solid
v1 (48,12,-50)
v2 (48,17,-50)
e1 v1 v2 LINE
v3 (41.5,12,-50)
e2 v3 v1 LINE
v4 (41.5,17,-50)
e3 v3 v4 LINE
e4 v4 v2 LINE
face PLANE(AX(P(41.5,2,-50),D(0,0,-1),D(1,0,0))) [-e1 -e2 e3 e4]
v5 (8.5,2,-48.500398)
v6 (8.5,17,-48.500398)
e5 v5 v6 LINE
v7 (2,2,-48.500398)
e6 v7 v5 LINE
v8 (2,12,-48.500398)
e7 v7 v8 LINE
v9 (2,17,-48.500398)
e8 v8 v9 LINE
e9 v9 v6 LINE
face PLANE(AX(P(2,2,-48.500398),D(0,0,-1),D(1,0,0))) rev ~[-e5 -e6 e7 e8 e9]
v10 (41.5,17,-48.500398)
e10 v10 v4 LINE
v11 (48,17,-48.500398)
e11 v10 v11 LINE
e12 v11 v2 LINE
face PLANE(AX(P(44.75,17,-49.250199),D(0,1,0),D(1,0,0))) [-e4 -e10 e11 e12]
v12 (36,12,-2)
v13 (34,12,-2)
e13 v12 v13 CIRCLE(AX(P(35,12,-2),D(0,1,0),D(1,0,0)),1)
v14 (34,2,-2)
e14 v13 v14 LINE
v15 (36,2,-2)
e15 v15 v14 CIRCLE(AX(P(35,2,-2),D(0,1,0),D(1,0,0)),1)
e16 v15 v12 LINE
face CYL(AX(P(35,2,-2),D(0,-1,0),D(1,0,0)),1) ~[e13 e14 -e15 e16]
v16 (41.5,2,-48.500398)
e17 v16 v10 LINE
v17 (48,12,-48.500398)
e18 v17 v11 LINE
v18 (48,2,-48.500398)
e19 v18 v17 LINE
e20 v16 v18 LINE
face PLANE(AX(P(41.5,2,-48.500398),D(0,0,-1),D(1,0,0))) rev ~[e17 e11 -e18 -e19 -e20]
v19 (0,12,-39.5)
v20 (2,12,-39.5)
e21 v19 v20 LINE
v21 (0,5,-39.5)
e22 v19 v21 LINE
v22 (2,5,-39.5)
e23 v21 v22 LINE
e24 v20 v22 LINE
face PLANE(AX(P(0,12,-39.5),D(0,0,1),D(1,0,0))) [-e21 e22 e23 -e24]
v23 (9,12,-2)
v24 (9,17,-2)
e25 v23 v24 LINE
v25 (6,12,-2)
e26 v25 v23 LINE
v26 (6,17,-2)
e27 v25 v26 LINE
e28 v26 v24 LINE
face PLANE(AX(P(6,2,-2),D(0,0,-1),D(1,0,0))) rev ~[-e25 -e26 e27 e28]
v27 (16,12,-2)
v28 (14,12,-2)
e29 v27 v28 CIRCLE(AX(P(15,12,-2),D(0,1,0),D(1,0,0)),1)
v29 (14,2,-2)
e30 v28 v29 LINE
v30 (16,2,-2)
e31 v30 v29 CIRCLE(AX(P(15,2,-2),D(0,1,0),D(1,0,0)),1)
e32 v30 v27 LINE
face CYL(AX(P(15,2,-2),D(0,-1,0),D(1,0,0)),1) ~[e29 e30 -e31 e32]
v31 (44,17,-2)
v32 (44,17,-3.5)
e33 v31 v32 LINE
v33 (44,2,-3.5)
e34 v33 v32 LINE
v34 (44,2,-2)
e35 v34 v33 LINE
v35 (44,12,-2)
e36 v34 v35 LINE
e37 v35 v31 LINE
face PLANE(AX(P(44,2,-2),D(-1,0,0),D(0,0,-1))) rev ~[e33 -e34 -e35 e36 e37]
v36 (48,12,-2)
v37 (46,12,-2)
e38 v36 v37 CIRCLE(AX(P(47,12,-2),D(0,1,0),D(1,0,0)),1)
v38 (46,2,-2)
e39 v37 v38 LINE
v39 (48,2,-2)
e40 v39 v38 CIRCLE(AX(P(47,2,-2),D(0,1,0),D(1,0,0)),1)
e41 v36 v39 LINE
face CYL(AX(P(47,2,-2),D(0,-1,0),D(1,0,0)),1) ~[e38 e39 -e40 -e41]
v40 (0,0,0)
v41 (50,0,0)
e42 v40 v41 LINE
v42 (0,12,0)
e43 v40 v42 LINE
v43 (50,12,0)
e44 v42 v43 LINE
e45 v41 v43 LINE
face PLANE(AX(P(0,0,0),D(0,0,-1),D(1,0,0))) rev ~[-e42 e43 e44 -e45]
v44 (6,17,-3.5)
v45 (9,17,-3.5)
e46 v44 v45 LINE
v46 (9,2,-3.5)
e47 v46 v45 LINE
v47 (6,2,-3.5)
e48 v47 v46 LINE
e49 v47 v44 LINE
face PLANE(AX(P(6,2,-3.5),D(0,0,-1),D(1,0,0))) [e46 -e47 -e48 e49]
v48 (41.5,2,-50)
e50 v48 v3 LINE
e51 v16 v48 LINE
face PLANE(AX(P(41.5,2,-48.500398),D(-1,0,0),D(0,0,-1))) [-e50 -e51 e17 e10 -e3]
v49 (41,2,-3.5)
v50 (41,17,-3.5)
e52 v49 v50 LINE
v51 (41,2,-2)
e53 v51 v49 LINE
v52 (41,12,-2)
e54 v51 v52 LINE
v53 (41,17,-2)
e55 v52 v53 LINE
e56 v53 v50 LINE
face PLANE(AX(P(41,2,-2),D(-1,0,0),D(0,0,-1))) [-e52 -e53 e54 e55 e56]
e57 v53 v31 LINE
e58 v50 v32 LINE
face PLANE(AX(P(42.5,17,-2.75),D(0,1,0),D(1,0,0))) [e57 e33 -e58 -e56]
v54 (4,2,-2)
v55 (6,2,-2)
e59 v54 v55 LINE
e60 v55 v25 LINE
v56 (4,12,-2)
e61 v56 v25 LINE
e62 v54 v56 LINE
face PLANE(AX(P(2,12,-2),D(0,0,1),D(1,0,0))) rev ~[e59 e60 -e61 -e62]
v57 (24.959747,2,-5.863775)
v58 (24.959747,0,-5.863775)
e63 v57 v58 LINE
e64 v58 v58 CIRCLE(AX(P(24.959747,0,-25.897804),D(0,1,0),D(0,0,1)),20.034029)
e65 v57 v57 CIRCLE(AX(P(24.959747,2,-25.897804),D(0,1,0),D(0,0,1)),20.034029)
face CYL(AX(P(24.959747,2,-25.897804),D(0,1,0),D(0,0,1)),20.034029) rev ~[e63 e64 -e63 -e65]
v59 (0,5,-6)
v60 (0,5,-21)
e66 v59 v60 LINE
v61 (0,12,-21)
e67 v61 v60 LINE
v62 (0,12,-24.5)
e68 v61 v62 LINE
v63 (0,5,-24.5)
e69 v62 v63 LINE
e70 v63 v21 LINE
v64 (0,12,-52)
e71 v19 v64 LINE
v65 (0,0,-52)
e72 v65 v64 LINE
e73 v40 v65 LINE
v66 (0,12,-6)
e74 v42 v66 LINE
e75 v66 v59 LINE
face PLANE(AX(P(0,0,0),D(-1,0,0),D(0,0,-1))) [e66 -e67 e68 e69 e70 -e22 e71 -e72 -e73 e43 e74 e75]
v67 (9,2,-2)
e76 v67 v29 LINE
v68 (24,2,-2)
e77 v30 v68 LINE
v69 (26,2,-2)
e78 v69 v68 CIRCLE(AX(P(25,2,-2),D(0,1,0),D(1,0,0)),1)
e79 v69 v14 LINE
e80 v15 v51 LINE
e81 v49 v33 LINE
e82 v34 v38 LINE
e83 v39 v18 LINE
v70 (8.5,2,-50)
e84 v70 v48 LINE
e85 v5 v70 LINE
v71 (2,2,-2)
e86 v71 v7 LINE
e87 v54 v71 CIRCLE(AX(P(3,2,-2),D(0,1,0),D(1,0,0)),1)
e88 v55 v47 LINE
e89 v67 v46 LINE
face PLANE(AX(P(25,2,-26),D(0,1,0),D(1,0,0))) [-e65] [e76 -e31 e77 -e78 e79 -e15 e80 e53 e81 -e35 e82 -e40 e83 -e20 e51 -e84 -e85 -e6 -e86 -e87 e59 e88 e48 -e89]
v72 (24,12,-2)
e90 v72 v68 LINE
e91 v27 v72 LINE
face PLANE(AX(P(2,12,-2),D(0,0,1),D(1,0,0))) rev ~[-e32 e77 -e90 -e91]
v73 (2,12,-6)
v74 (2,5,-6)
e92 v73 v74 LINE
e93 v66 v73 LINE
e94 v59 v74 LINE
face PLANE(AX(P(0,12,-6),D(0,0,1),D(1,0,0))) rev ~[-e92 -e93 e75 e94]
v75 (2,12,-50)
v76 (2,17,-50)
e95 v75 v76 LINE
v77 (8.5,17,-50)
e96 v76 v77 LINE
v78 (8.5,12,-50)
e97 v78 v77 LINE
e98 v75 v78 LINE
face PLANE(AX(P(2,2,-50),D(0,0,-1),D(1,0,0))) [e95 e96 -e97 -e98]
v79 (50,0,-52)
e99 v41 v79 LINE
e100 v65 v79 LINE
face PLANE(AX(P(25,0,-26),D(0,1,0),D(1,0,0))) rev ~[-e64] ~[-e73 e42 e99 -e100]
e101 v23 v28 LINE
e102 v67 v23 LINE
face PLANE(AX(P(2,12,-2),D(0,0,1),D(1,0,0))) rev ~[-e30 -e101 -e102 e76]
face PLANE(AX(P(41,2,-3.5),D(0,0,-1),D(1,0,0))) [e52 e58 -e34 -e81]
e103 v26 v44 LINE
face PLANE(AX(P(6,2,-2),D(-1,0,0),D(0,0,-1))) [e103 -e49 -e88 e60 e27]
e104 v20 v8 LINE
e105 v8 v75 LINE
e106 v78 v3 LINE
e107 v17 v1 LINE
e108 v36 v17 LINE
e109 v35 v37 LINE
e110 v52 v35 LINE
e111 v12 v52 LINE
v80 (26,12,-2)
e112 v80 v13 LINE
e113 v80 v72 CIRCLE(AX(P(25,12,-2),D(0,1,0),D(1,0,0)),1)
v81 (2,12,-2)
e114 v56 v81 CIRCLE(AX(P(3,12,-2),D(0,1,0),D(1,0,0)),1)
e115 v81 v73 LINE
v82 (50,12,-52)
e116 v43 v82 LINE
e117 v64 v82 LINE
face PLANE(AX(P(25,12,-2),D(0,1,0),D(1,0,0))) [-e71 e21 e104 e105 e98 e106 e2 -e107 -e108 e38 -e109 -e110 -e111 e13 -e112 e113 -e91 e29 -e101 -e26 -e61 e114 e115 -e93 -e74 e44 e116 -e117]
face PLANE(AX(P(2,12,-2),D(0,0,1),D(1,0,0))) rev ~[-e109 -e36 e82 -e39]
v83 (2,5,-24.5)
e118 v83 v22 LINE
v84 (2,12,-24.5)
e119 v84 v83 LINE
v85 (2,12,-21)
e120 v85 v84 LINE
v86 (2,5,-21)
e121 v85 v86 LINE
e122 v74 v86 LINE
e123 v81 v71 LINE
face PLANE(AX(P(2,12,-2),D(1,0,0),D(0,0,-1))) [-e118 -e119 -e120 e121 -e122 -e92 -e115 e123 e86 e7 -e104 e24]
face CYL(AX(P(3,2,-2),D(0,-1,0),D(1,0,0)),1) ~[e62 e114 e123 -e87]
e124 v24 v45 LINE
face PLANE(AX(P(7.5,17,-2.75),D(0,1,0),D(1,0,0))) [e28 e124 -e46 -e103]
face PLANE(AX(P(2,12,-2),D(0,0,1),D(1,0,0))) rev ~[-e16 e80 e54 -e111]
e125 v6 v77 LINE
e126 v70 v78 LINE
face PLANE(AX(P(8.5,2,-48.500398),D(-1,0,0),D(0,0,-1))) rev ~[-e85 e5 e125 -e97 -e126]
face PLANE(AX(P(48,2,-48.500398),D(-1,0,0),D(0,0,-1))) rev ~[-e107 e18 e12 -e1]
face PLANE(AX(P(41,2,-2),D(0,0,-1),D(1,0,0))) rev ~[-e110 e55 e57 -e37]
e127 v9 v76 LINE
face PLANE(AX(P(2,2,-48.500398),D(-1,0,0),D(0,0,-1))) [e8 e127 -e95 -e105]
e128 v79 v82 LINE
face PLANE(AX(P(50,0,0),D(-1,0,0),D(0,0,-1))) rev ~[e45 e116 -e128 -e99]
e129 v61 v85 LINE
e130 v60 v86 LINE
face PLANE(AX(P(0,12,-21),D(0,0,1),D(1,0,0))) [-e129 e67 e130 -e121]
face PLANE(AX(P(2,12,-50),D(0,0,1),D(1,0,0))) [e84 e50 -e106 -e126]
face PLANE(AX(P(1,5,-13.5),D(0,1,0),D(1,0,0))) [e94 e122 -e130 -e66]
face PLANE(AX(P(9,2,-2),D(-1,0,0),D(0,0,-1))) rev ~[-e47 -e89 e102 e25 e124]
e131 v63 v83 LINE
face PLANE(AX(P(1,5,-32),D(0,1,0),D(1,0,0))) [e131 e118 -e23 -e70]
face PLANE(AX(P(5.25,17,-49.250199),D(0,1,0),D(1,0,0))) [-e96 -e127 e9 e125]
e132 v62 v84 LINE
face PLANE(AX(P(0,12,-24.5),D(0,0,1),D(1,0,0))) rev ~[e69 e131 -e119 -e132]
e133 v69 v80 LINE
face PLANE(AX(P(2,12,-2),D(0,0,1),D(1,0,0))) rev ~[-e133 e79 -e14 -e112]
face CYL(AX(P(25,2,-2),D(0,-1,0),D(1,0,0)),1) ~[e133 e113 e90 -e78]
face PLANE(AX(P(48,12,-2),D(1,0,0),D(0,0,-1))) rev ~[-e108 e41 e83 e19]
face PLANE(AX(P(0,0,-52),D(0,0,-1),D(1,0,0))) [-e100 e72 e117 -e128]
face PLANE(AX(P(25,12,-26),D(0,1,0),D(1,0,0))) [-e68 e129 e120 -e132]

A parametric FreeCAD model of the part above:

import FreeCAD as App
import Part
import Sketcher

V = App.Vector


def add_polygon(sketch, points):
    """Adds a closed chain of lines whose ends are joined by coincident constraints."""
    first, n = sketch.GeometryCount, len(points)
    for a, b in zip(points, points[1:] + points[:1]):
        sketch.addGeometry(Part.LineSegment(App.Vector(*a, 0), App.Vector(*b, 0)), False)
    for i in range(n):
        sketch.addConstraint(Sketcher.Constraint("Coincident", first + i, 2, first + (i + 1) % n, 1))

doc = App.newDocument("Part")
body = doc.addObject("PartDesign::Body", "Body")

# Sketch on XZ plane
sketch1 = body.newObject("Sketcher::SketchObject", "Sketch")
sketch1.AttachmentSupport = (doc.getObject("XZ_Plane"), [""])
sketch1.MapMode = "FlatFace"
add_polygon(sketch1, [(0, -52), (0, 0), (50, 0), (50, -52)])  # lines 0-3
sketch1.addConstraint([
    Sketcher.Constraint("Vertical", 0),
    Sketcher.Constraint("Horizontal", 1),
    Sketcher.Constraint("Vertical", 2),
    Sketcher.Constraint("Horizontal", 3),
    Sketcher.Constraint("Coincident", 0, 2, -1, 1),
    Sketcher.Constraint("DistanceX", 1, 1, 1, 2, 50.0),
    Sketcher.Constraint("DistanceY", 0, 1, 0, 2, 52.0),
])
pad1 = body.newObject("PartDesign::Pad", "Pad")
pad1.Profile = sketch1
pad1.Length = 12
pad1.Reversed = True

# Sketch on XZ plane
sketch2 = body.newObject("Sketcher::SketchObject", "Sketch001")
sketch2.AttachmentSupport = (doc.getObject("XZ_Plane"), [""])
sketch2.MapMode = "FlatFace"
sketch2.AttachmentOffset = App.Placement(V(0, 0, -12), App.Rotation())
add_polygon(sketch2, [(2, -50), (2, -2), (48, -2), (48, -50)])  # lines 0-3
sketch2.addConstraint([
    Sketcher.Constraint("Vertical", 0),
    Sketcher.Constraint("Horizontal", 1),
    Sketcher.Constraint("Vertical", 2),
    Sketcher.Constraint("Horizontal", 3),
    Sketcher.Constraint("DistanceX", 1, 1, 1, 2, 46.0),
    Sketcher.Constraint("DistanceY", 0, 1, 0, 2, 48.0),
    Sketcher.Constraint("DistanceX", -1, 1, 0, 2, 2.0),
    Sketcher.Constraint("DistanceY", 0, 2, -1, 1, 2.0),
])
pocket1 = body.newObject("PartDesign::Pocket", "Pocket")
pocket1.Profile = sketch2
pocket1.Length = 10
pocket1.Reversed = True

# Sketch on XZ plane
sketch3 = body.newObject("Sketcher::SketchObject", "Sketch002")
sketch3.AttachmentSupport = (doc.getObject("XZ_Plane"), [""])
sketch3.MapMode = "FlatFace"
sketch3.AttachmentOffset = App.Placement(V(0, 0, -12), App.Rotation())
add_polygon(sketch3, [(0, -39.5), (0, -24.5), (2, -24.5), (2, -39.5)])  # lines 0-3
add_polygon(sketch3, [(0, -21), (0, -6), (2, -6), (2, -21)])  # lines 4-7
sketch3.addConstraint([
    Sketcher.Constraint("Vertical", 0),
    Sketcher.Constraint("Horizontal", 1),
    Sketcher.Constraint("Vertical", 2),
    Sketcher.Constraint("Horizontal", 3),
    Sketcher.Constraint("Vertical", 4),
    Sketcher.Constraint("Horizontal", 5),
    Sketcher.Constraint("Vertical", 6),
    Sketcher.Constraint("Horizontal", 7),
    Sketcher.Constraint("PointOnObject", 0, 2, -2),
    Sketcher.Constraint("PointOnObject", 4, 2, -2),
    Sketcher.Constraint("Vertical", 2, 2, 5, 2),
    Sketcher.Constraint("Equal", 2, 4),
    Sketcher.Constraint("DistanceX", 1, 1, 1, 2, 2.0),
    Sketcher.Constraint("DistanceY", 0, 1, 0, 2, 15.0),
    Sketcher.Constraint("DistanceY", 4, 2, -1, 1, 6.0),
    Sketcher.Constraint("DistanceY", 0, 2, -1, 1, 24.5),
])
pocket2 = body.newObject("PartDesign::Pocket", "Pocket001")
pocket2.Profile = sketch3
pocket2.Length = 7
pocket2.Reversed = True

# Sketch on XZ plane
sketch4 = body.newObject("Sketcher::SketchObject", "Sketch003")
sketch4.AttachmentSupport = (doc.getObject("XZ_Plane"), [""])
sketch4.MapMode = "FlatFace"
sketch4.AttachmentOffset = App.Placement(V(0, 0, -2), App.Rotation())
sketch4.addGeometry([
    Part.Circle(V(25, -2, 0), V(0, 0, 1), 1),  # 0
    Part.Circle(V(35, -2, 0), V(0, 0, 1), 1),  # 1
    Part.Circle(V(15, -2, 0), V(0, 0, 1), 1),  # 2
    Part.Circle(V(3, -2, 0), V(0, 0, 1), 1),  # 3
    Part.Circle(V(47, -2, 0), V(0, 0, 1), 1),  # 4
], False)
sketch4.addConstraint([
    Sketcher.Constraint("Equal", 0, 1),
    Sketcher.Constraint("Equal", 1, 2),
    Sketcher.Constraint("Equal", 2, 3),
    Sketcher.Constraint("Equal", 3, 4),
    Sketcher.Constraint("Horizontal", 0, 3, 1, 3),
    Sketcher.Constraint("Horizontal", 1, 3, 2, 3),
    Sketcher.Constraint("Horizontal", 2, 3, 3, 3),
    Sketcher.Constraint("Horizontal", 3, 3, 4, 3),
    Sketcher.Constraint("Diameter", 0, 2.0),
    Sketcher.Constraint("DistanceX", -1, 1, 0, 3, 25.0),
    Sketcher.Constraint("DistanceY", 0, 3, -1, 1, 2.0),
    Sketcher.Constraint("DistanceX", -1, 1, 1, 3, 35.0),
    Sketcher.Constraint("DistanceX", -1, 1, 2, 3, 15.0),
    Sketcher.Constraint("DistanceX", -1, 1, 3, 3, 3.0),
    Sketcher.Constraint("DistanceX", -1, 1, 4, 3, 47.0),
])
pad2 = body.newObject("PartDesign::Pad", "Pad001")
pad2.Profile = sketch4
pad2.Length = 10
pad2.Reversed = True

# Sketch on XZ plane
sketch5 = body.newObject("Sketcher::SketchObject", "Sketch004")
sketch5.AttachmentSupport = (doc.getObject("XZ_Plane"), [""])
sketch5.MapMode = "FlatFace"
sketch5.AttachmentOffset = App.Placement(V(0, 0, -2), App.Rotation())
add_polygon(sketch5, [(6, -3.5), (6, -2), (9, -2), (9, -3.5)])  # lines 0-3
add_polygon(sketch5, [(41, -3.5), (41, -2), (44, -2), (44, -3.5)])  # lines 4-7
add_polygon(sketch5, [(2, -50), (2, -48.500398), (8.5, -48.500398), (8.5, -50)])  # lines 8-11
add_polygon(sketch5, [(41.5, -50), (41.5, -48.500398), (48, -48.500398), (48, -50)])  # lines 12-15
sketch5.addConstraint([
    Sketcher.Constraint("Vertical", 0),
    Sketcher.Constraint("Horizontal", 1),
    Sketcher.Constraint("Vertical", 2),
    Sketcher.Constraint("Horizontal", 3),
    Sketcher.Constraint("Vertical", 4),
    Sketcher.Constraint("Horizontal", 5),
    Sketcher.Constraint("Vertical", 6),
    Sketcher.Constraint("Horizontal", 7),
    Sketcher.Constraint("Vertical", 8),
    Sketcher.Constraint("Horizontal", 9),
    Sketcher.Constraint("Vertical", 10),
    Sketcher.Constraint("Horizontal", 11),
    Sketcher.Constraint("Vertical", 12),
    Sketcher.Constraint("Horizontal", 13),
    Sketcher.Constraint("Vertical", 14),
    Sketcher.Constraint("Horizontal", 15),
    Sketcher.Constraint("Horizontal", 1, 2, 4, 2),
    Sketcher.Constraint("Horizontal", 3, 2, 6, 2),
    Sketcher.Constraint("Horizontal", 9, 2, 12, 2),
    Sketcher.Constraint("Horizontal", 11, 2, 14, 2),
    Sketcher.Constraint("Equal", 3, 5),
    Sketcher.Constraint("Equal", 11, 13),
    Sketcher.Constraint("DistanceX", 1, 1, 1, 2, 3.0),
    Sketcher.Constraint("DistanceX", 9, 1, 9, 2, 6.5),
    Sketcher.Constraint("DistanceY", 0, 1, 0, 2, 1.5),
    Sketcher.Constraint("DistanceX", -1, 1, 0, 2, 6.0),
    Sketcher.Constraint("DistanceY", 0, 2, -1, 1, 2.0),
    Sketcher.Constraint("DistanceX", -1, 1, 4, 2, 41.0),
    Sketcher.Constraint("DistanceX", -1, 1, 8, 2, 2.0),
    Sketcher.Constraint("DistanceY", 10, 2, -1, 1, 50.0),
    Sketcher.Constraint("DistanceX", -1, 1, 13, 2, 48.0),
    Sketcher.Constraint("DistanceY", 8, 1, 8, 2, 1.499602),
])
pad3 = body.newObject("PartDesign::Pad", "Pad002")
pad3.Profile = sketch5
pad3.Length = 15
pad3.Reversed = True

# Sketch on XZ plane
sketch6 = body.newObject("Sketcher::SketchObject", "Sketch005")
sketch6.AttachmentSupport = (doc.getObject("XZ_Plane"), [""])
sketch6.MapMode = "FlatFace"
sketch6.AttachmentOffset = App.Placement(V(0, 0, -2), App.Rotation())
sketch6.addGeometry(Part.Circle(V(24.959747, -25.897804, 0), V(0, 0, 1), 20.034029), False)
sketch6.addConstraint([
    Sketcher.Constraint("Diameter", 0, 40.068059),
    Sketcher.Constraint("DistanceX", -1, 1, 0, 3, 24.959747),
    Sketcher.Constraint("DistanceY", 0, 3, -1, 1, 25.897804),
])
pocket3 = body.newObject("PartDesign::Pocket", "Pocket002")
pocket3.Profile = sketch6
pocket3.Length = 15
pocket3.Reversed = True

doc.recompute()
